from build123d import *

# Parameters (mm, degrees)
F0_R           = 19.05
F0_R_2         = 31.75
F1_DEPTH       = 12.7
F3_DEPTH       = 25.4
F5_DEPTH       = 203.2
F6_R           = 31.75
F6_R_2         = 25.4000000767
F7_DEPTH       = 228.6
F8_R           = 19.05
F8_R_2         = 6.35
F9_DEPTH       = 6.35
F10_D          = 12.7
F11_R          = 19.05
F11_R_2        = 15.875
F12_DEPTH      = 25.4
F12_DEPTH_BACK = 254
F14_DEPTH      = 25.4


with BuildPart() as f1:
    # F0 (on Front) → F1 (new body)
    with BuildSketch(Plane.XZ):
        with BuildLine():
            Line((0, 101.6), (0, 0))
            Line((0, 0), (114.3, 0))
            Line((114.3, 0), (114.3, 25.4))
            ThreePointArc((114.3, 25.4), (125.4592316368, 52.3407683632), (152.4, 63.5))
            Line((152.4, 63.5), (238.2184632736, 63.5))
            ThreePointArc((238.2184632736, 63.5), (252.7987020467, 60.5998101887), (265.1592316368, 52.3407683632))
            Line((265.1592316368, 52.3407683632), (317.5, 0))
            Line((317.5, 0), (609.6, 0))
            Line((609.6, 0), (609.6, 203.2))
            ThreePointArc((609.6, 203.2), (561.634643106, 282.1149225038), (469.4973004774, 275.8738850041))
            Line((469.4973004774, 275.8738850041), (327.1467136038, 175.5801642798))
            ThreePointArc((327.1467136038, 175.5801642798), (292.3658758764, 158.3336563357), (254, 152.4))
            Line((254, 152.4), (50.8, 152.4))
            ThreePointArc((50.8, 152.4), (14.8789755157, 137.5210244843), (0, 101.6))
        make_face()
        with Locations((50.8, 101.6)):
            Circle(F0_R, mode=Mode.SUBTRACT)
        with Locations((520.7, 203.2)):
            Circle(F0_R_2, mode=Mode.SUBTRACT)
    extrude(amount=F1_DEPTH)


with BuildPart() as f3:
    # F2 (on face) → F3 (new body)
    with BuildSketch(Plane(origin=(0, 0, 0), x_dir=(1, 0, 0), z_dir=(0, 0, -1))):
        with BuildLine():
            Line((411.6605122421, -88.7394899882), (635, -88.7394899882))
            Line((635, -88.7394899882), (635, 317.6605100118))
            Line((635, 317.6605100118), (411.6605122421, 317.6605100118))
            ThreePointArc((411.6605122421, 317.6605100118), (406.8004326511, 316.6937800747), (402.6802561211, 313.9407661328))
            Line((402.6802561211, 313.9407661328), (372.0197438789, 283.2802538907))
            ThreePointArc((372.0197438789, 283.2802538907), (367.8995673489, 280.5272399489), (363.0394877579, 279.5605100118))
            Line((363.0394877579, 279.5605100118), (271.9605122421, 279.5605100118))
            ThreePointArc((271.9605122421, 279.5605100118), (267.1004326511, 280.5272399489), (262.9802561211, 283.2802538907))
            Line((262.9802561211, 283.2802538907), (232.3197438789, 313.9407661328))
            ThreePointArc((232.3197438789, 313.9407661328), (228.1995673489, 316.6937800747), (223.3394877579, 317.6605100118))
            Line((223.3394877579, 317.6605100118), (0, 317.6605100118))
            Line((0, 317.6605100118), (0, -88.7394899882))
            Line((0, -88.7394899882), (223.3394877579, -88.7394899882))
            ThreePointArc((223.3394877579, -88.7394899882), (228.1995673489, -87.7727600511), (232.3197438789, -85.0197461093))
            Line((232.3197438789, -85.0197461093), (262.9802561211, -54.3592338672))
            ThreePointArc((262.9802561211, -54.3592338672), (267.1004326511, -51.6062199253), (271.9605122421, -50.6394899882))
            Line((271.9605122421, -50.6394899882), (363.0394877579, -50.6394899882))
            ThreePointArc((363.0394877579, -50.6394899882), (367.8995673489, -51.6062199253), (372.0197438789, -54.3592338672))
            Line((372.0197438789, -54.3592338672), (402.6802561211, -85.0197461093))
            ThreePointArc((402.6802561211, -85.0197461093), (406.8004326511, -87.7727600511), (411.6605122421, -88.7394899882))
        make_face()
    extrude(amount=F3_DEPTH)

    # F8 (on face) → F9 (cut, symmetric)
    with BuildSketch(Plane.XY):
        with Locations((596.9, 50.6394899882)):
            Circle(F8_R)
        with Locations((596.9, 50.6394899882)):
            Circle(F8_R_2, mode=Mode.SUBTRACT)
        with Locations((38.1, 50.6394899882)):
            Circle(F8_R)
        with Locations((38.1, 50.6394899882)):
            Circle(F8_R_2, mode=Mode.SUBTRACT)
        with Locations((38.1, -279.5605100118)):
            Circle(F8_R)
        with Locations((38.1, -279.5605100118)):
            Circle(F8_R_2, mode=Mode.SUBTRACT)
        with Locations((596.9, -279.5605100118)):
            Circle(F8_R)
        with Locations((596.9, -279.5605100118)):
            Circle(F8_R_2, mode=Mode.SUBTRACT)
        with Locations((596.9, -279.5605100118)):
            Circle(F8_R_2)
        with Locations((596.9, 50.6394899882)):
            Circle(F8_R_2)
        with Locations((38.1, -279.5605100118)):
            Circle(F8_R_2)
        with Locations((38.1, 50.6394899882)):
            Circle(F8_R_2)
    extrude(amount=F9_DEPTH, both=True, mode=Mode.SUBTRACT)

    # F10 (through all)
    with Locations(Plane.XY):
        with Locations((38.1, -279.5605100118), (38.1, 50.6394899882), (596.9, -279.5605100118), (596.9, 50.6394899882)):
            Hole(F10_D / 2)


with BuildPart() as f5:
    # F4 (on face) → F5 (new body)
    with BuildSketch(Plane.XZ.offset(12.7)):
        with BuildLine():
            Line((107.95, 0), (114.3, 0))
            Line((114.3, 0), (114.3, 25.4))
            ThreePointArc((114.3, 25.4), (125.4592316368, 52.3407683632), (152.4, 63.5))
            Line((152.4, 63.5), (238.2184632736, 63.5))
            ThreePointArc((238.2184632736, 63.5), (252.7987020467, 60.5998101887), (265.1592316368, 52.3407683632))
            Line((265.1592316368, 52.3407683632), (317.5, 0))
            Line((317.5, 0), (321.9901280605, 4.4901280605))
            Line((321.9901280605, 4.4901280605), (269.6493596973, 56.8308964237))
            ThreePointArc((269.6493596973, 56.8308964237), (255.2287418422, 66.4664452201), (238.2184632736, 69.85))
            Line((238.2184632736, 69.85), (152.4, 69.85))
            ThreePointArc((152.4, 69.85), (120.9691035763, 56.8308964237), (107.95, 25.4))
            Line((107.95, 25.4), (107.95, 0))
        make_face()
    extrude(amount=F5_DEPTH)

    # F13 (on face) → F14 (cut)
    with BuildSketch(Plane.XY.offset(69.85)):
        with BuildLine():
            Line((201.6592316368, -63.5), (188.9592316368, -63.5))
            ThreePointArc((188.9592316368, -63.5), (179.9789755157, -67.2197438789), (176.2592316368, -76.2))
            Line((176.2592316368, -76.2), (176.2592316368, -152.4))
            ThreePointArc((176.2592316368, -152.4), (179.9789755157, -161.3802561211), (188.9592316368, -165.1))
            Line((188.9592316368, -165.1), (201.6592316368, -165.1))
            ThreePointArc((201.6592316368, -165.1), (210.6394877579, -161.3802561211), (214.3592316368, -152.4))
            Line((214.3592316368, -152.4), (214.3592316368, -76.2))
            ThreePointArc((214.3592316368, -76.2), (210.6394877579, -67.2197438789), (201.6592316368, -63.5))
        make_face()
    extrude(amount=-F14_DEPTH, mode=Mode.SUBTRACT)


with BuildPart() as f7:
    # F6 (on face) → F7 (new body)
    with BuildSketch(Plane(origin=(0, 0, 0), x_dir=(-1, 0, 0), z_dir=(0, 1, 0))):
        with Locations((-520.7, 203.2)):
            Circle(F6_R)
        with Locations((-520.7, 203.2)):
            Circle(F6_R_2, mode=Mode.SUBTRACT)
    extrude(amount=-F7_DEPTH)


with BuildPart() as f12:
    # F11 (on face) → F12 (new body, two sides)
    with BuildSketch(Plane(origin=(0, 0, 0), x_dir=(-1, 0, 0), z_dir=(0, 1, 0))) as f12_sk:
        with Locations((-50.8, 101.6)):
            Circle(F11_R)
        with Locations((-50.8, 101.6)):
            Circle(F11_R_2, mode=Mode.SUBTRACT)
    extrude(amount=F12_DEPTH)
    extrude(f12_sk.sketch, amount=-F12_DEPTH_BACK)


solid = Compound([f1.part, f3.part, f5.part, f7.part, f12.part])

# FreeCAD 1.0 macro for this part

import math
import FreeCAD as App
import Part
import Sketcher
Q = App.Units.Quantity

doc = App.newDocument("Part")
body = doc.addObject("PartDesign::Body", "Body")

# Sketch on XZ plane
sketch1 = body.newObject("Sketcher::SketchObject", "Sketch")
sketch1.AttachmentSupport = (doc.getObject("XZ_Plane"), [""])
sketch1.MapMode = "FlatFace"
sketch1.addGeometry([
    Part.LineSegment(App.Vector(0, 102, 0), App.Vector(0, 0, 0)),  # 0
    Part.LineSegment(App.Vector(0, 0, 0), App.Vector(114, 0, 0)),  # 1
    Part.LineSegment(App.Vector(114, 0, 0), App.Vector(114, 25, 0)),  # 2
    Part.ArcOfCircle(Part.Circle(App.Vector(152, 25, 0), App.Vector(0, 0, 1), 38), math.radians(90), math.radians(180)),  # 3
    Part.LineSegment(App.Vector(152, 64, 0), App.Vector(238, 64, 0)),  # 4
    Part.ArcOfCircle(Part.Circle(App.Vector(238, 25, 0), App.Vector(0, 0, 1), 38), math.radians(45), math.radians(90)),  # 5
    Part.LineSegment(App.Vector(265, 52, 0), App.Vector(318, 0, 0)),  # 6
    Part.LineSegment(App.Vector(318, 0, 0), App.Vector(610, 0, 0)),  # 7
    Part.LineSegment(App.Vector(610, 0, 0), App.Vector(610, 203, 0)),  # 8
    Part.ArcOfCircle(Part.Circle(App.Vector(521, 203, 0), App.Vector(0, 0, 1), 89), math.radians(0), math.radians(125)),  # 9
    Part.LineSegment(App.Vector(469, 276, 0), App.Vector(327, 176, 0)),  # 10
    Part.ArcOfCircle(Part.Circle(App.Vector(254, 279, 0), App.Vector(0, 0, 1), 127), math.radians(-90), math.radians(-55)),  # 11
    Part.LineSegment(App.Vector(254, 152, 0), App.Vector(51, 152, 0)),  # 12
    Part.ArcOfCircle(Part.Circle(App.Vector(51, 102, 0), App.Vector(0, 0, 1), 51), math.radians(90), math.radians(180)),  # 13
    Part.Circle(App.Vector(51, 102, 0), App.Vector(0, 0, 1), 19),  # 14
    Part.Circle(App.Vector(521, 203, 0), App.Vector(0, 0, 1), 32),  # 15
], False)
sketch1.addConstraint([
    Sketcher.Constraint("Coincident", 0, 2, 1, 1),
    Sketcher.Constraint("Coincident", 1, 2, 2, 1),
    Sketcher.Constraint("Tangent", 2, 2, 3, 2),
    Sketcher.Constraint("Tangent", 3, 1, 4, 1),
    Sketcher.Constraint("Tangent", 4, 2, 5, 2),
    Sketcher.Constraint("Tangent", 5, 1, 6, 1),
    Sketcher.Constraint("Coincident", 6, 2, 7, 1),
    Sketcher.Constraint("Coincident", 7, 2, 8, 1),
    Sketcher.Constraint("Tangent", 8, 2, 9, 1),
    Sketcher.Constraint("Tangent", 9, 2, 10, 1),
    Sketcher.Constraint("Tangent", 10, 2, 11, 2),
    Sketcher.Constraint("Tangent", 11, 1, 12, 1),
    Sketcher.Constraint("Tangent", 12, 2, 13, 1),
    Sketcher.Constraint("Tangent", 13, 2, 0, 1),
    Sketcher.Constraint("Vertical", 0),
    Sketcher.Constraint("Horizontal", 1),
    Sketcher.Constraint("Vertical", 2),
    Sketcher.Constraint("Horizontal", 4),
    Sketcher.Constraint("Horizontal", 7),
    Sketcher.Constraint("Vertical", 8),
    Sketcher.Constraint("Horizontal", 12),
    Sketcher.Constraint("Coincident", 0, 2, -1, 1),
    Sketcher.Constraint("Coincident", 14, 3, 13, 3),
    Sketcher.Constraint("Coincident", 15, 3, 9, 3),
    Sketcher.Constraint("Equal", 3, 5),
    Sketcher.Constraint("PointOnObject", 6, 2, -1),
    Sketcher.Constraint("Equal", 12, 8),
    Sketcher.Constraint("Radius", 11, Q("5 in")),
    Sketcher.Constraint("Radius", 13, Q("2 in")),
    Sketcher.Constraint("Diameter", 14, Q("1.5 in")),
    Sketcher.Constraint("Diameter", 15, Q("2.5 in")),
    Sketcher.Constraint("Radius", 3, Q("1.5 in")),
    Sketcher.Constraint("Radius", 9, Q("3.5 in")),
    Sketcher.Constraint("DistanceX", 12, 2, 12, 1, Q("8 in")),
    Sketcher.Constraint("DistanceY", 0, 2, 0, 1, Q("4 in")),
    Sketcher.Constraint("DistanceY", 2, 1, 2, 2, Q("1 in")),
    Sketcher.Constraint("DistanceX", 1, 1, 1, 2, Q("4.5 in")),
    Sketcher.Constraint("DistanceX", 7, 1, 7, 2, Q("11.5 in")),
    Sketcher.Constraint("DistanceX", -1, 1, 7, 2, Q("24 in")),
    Sketcher.Constraint("Angle", 6, Q("-45 deg")),
])
pad1 = body.newObject("PartDesign::Pad", "Pad")
pad1.Profile = sketch1
pad1.Length = Q("0.5 in")
body2 = doc.addObject("PartDesign::Body", "Body001")

# Sketch on XY plane
sketch2 = body2.newObject("Sketcher::SketchObject", "Sketch001")
sketch2.AttachmentSupport = (doc.getObject("XY_Plane001"), [""])
sketch2.MapMode = "FlatFace"
sketch2.addGeometry([
    Part.LineSegment(App.Vector(412, 89, 0), App.Vector(635, 89, 0)),  # 0
    Part.LineSegment(App.Vector(635, 89, 0), App.Vector(635, -318, 0)),  # 1
    Part.LineSegment(App.Vector(635, -318, 0), App.Vector(412, -318, 0)),  # 2
    Part.ArcOfCircle(Part.Circle(App.Vector(412, -305, 0), App.Vector(0, 0, 1), 13), math.radians(-135), math.radians(-90)),  # 3
    Part.LineSegment(App.Vector(403, -314, 0), App.Vector(372, -283, 0)),  # 4
    Part.ArcOfCircle(Part.Circle(App.Vector(363, -292, 0), App.Vector(0, 0, 1), 13), math.radians(45), math.radians(90)),  # 5
    Part.LineSegment(App.Vector(363, -280, 0), App.Vector(272, -280, 0)),  # 6
    Part.ArcOfCircle(Part.Circle(App.Vector(272, -292, 0), App.Vector(0, 0, 1), 13), math.radians(90), math.radians(135)),  # 7
    Part.LineSegment(App.Vector(263, -283, 0), App.Vector(232, -314, 0)),  # 8
    Part.ArcOfCircle(Part.Circle(App.Vector(223, -305, 0), App.Vector(0, 0, 1), 13), math.radians(-90), math.radians(-45)),  # 9
    Part.LineSegment(App.Vector(223, -318, 0), App.Vector(0, -318, 0)),  # 10
    Part.LineSegment(App.Vector(0, -318, 0), App.Vector(0, 89, 0)),  # 11
    Part.LineSegment(App.Vector(0, 89, 0), App.Vector(223, 89, 0)),  # 12
    Part.ArcOfCircle(Part.Circle(App.Vector(223, 76, 0), App.Vector(0, 0, 1), 13), math.radians(45), math.radians(90)),  # 13
    Part.LineSegment(App.Vector(232, 85, 0), App.Vector(263, 54, 0)),  # 14
    Part.ArcOfCircle(Part.Circle(App.Vector(272, 63, 0), App.Vector(0, 0, 1), 13), math.radians(-135), math.radians(-90)),  # 15
    Part.LineSegment(App.Vector(272, 51, 0), App.Vector(363, 51, 0)),  # 16
    Part.ArcOfCircle(Part.Circle(App.Vector(363, 63, 0), App.Vector(0, 0, 1), 13), math.radians(-90), math.radians(-45)),  # 17
    Part.LineSegment(App.Vector(372, 54, 0), App.Vector(403, 85, 0)),  # 18
    Part.ArcOfCircle(Part.Circle(App.Vector(412, 76, 0), App.Vector(0, 0, 1), 13), math.radians(90), math.radians(135)),  # 19
], False)
sketch2.addConstraint([
    Sketcher.Constraint("Coincident", 0, 2, 1, 1),
    Sketcher.Constraint("Coincident", 1, 2, 2, 1),
    Sketcher.Constraint("Tangent", 2, 2, 3, 2),
    Sketcher.Constraint("Tangent", 3, 1, 4, 1),
    Sketcher.Constraint("Tangent", 4, 2, 5, 1),
    Sketcher.Constraint("Tangent", 5, 2, 6, 1),
    Sketcher.Constraint("Tangent", 6, 2, 7, 1),
    Sketcher.Constraint("Tangent", 7, 2, 8, 1),
    Sketcher.Constraint("Tangent", 8, 2, 9, 2),
    Sketcher.Constraint("Tangent", 9, 1, 10, 1),
    Sketcher.Constraint("Coincident", 10, 2, 11, 1),
    Sketcher.Constraint("Coincident", 11, 2, 12, 1),
    Sketcher.Constraint("Tangent", 12, 2, 13, 2),
    Sketcher.Constraint("Tangent", 13, 1, 14, 1),
    Sketcher.Constraint("Tangent", 14, 2, 15, 1),
    Sketcher.Constraint("Tangent", 15, 2, 16, 1),
    Sketcher.Constraint("Tangent", 16, 2, 17, 1),
    Sketcher.Constraint("Tangent", 17, 2, 18, 1),
    Sketcher.Constraint("Tangent", 18, 2, 19, 2),
    Sketcher.Constraint("Tangent", 19, 1, 0, 1),
    Sketcher.Constraint("Horizontal", 0),
    Sketcher.Constraint("Vertical", 1),
    Sketcher.Constraint("Horizontal", 2),
    Sketcher.Constraint("Horizontal", 6),
    Sketcher.Constraint("Horizontal", 10),
    Sketcher.Constraint("Vertical", 11),
    Sketcher.Constraint("Horizontal", 12),
    Sketcher.Constraint("Horizontal", 16),
    Sketcher.Constraint("Equal", 3, 5),
    Sketcher.Constraint("Equal", 5, 7),
    Sketcher.Constraint("Equal", 7, 9),
    Sketcher.Constraint("Equal", 9, 13),
    Sketcher.Constraint("Equal", 13, 15),
    Sketcher.Constraint("Equal", 15, 17),
    Sketcher.Constraint("Equal", 17, 19),
    Sketcher.Constraint("PointOnObject", 10, 2, -2),
    Sketcher.Constraint("Perpendicular", 4, 8),
    Sketcher.Constraint("Perpendicular", 8, 14),
    Sketcher.Constraint("Perpendicular", 14, 18),
    Sketcher.Constraint("Horizontal", 3, 3, 9, 3),
    Sketcher.Constraint("Horizontal", 13, 3, 19, 3),
    Sketcher.Constraint("Horizontal", 4, 2, 7, 2),
    Sketcher.Constraint("Vertical", 9, 3, 13, 3),
    Sketcher.Constraint("Vertical", 7, 3, 15, 3),
    Sketcher.Constraint("Vertical", 5, 3, 17, 3),
    Sketcher.Constraint("Equal", 2, 10),
    Sketcher.Constraint("Radius", 3, Q("0.5 in")),
    Sketcher.Constraint("DistanceY", 1, 2, 1, 1, Q("16 in")),
    Sketcher.Constraint("DistanceX", -1, 1, 0, 2, Q("25 in")),
    Sketcher.Constraint("DistanceY", 7, 3, 15, 3, Q("14 in")),
    Sketcher.Constraint("DistanceX", 7, 3, 3, 3, Q("5.5 in")),
    Sketcher.Constraint("DistanceY", 3, 3, -1, 1, Q("304.96051 mm")),
])
pad2 = body2.newObject("PartDesign::Pad", "Pad001")
pad2.Profile = sketch2
pad2.Length = Q("1 in")
pad2.Reversed = True

# Sketch on XY plane
sketch3 = body2.newObject("Sketcher::SketchObject", "Sketch002")
sketch3.AttachmentSupport = (doc.getObject("XY_Plane001"), [""])
sketch3.MapMode = "FlatFace"
sketch3.addGeometry([
    Part.Circle(App.Vector(597, 51, 0), App.Vector(0, 0, 1), 19),
    Part.Circle(App.Vector(38, 51, 0), App.Vector(0, 0, 1), 19),
    Part.Circle(App.Vector(38, -280, 0), App.Vector(0, 0, 1), 19),
    Part.Circle(App.Vector(597, -280, 0), App.Vector(0, 0, 1), 19),
], False)
sketch3.addConstraint([
    Sketcher.Constraint("Equal", 0, 1),
    Sketcher.Constraint("Equal", 1, 2),
    Sketcher.Constraint("Equal", 2, 3),
    Sketcher.Constraint("Horizontal", 0, 3, 1, 3),
    Sketcher.Constraint("Horizontal", 2, 3, 3, 3),
    Sketcher.Constraint("Vertical", 1, 3, 2, 3),
    Sketcher.Constraint("Vertical", 0, 3, 3, 3),
    Sketcher.Constraint("Diameter", 0, Q("1.5 in")),
    Sketcher.Constraint("DistanceX", 1, 3, 0, 3, Q("22 in")),
    Sketcher.Constraint("DistanceY", 2, 3, 1, 3, Q("13 in")),
    Sketcher.Constraint("DistanceX", -1, 1, 0, 3, Q("23.5 in")),
    Sketcher.Constraint("DistanceY", -1, 1, 0, 3, Q("50.63949 mm")),
])
pocket1 = body2.newObject("PartDesign::Pocket", "Pocket")
pocket1.Profile = sketch3
pocket1.Length = Q("0.5 in")
pocket1.Midplane = True

# Sketch on XY plane
sketch4 = body2.newObject("Sketcher::SketchObject", "Sketch003")
sketch4.AttachmentSupport = (doc.getObject("XY_Plane001"), [""])
sketch4.MapMode = "FlatFace"
sketch4.addGeometry([
    Part.Circle(App.Vector(38, -280, 0), App.Vector(0, 0, 1), 6),
    Part.Circle(App.Vector(38, 51, 0), App.Vector(0, 0, 1), 6),
    Part.Circle(App.Vector(597, -280, 0), App.Vector(0, 0, 1), 6),
    Part.Circle(App.Vector(597, 51, 0), App.Vector(0, 0, 1), 6),
], False)
sketch4.addConstraint([
    Sketcher.Constraint("Equal", 0, 1),
    Sketcher.Constraint("Equal", 1, 2),
    Sketcher.Constraint("Equal", 2, 3),
    Sketcher.Constraint("Horizontal", 0, 3, 2, 3),
    Sketcher.Constraint("Horizontal", 1, 3, 3, 3),
    Sketcher.Constraint("Vertical", 0, 3, 1, 3),
    Sketcher.Constraint("Vertical", 2, 3, 3, 3),
    Sketcher.Constraint("Diameter", 0, Q("0.5 in")),
    Sketcher.Constraint("DistanceY", 0, 3, 1, 3, Q("13 in")),
    Sketcher.Constraint("DistanceX", 0, 3, 2, 3, Q("22 in")),
    Sketcher.Constraint("DistanceX", -1, 1, 0, 3, Q("1.5 in")),
    Sketcher.Constraint("DistanceY", 0, 3, -1, 1, Q("279.56051 mm")),
])
doc.recompute()
hole = body2.newObject("PartDesign::Hole", "Hole")
hole.Profile = sketch4
hole.ThreadType = "None"
hole.Diameter = Q("0.5 in")
hole.DepthType = "ThroughAll"
body3 = doc.addObject("PartDesign::Body", "Body002")

# Sketch on XZ plane
sketch5 = body3.newObject("Sketcher::SketchObject", "Sketch004")
sketch5.AttachmentSupport = (doc.getObject("XZ_Plane002"), [""])
sketch5.MapMode = "FlatFace"
sketch5.AttachmentOffset = App.Placement(App.Vector(0, 0, 0.5 * 25.4), App.Rotation())
sketch5.addGeometry([
    Part.LineSegment(App.Vector(108, 0, 0), App.Vector(114, 0, 0)),  # 0
    Part.LineSegment(App.Vector(114, 0, 0), App.Vector(114, 25, 0)),  # 1
    Part.ArcOfCircle(Part.Circle(App.Vector(152, 25, 0), App.Vector(0, 0, 1), 38), math.radians(90), math.radians(180)),  # 2
    Part.LineSegment(App.Vector(152, 64, 0), App.Vector(238, 64, 0)),  # 3
    Part.ArcOfCircle(Part.Circle(App.Vector(238, 25, 0), App.Vector(0, 0, 1), 38), math.radians(45), math.radians(90)),  # 4
    Part.LineSegment(App.Vector(265, 52, 0), App.Vector(318, 0, 0)),  # 5
    Part.LineSegment(App.Vector(318, 0, 0), App.Vector(322, 4, 0)),  # 6
    Part.LineSegment(App.Vector(322, 4, 0), App.Vector(270, 57, 0)),  # 7
    Part.ArcOfCircle(Part.Circle(App.Vector(238, 25, 0), App.Vector(0, 0, 1), 44), math.radians(45), math.radians(90)),  # 8
    Part.LineSegment(App.Vector(238, 70, 0), App.Vector(152, 70, 0)),  # 9
    Part.ArcOfCircle(Part.Circle(App.Vector(152, 25, 0), App.Vector(0, 0, 1), 44), math.radians(90), math.radians(180)),  # 10
    Part.LineSegment(App.Vector(108, 25, 0), App.Vector(108, 0, 0)),  # 11
], False)
sketch5.addConstraint([
    Sketcher.Constraint("Coincident", 0, 2, 1, 1),
    Sketcher.Constraint("Tangent", 1, 2, 2, 2),
    Sketcher.Constraint("Tangent", 2, 1, 3, 1),
    Sketcher.Constraint("Tangent", 3, 2, 4, 2),
    Sketcher.Constraint("Tangent", 4, 1, 5, 1),
    Sketcher.Constraint("Coincident", 5, 2, 6, 1),
    Sketcher.Constraint("Coincident", 6, 2, 7, 1),
    Sketcher.Constraint("Tangent", 7, 2, 8, 1),
    Sketcher.Constraint("Tangent", 8, 2, 9, 1),
    Sketcher.Constraint("Tangent", 9, 2, 10, 1),
    Sketcher.Constraint("Tangent", 10, 2, 11, 1),
    Sketcher.Constraint("Coincident", 11, 2, 0, 1),
    Sketcher.Constraint("Horizontal", 0),
    Sketcher.Constraint("Vertical", 1),
    Sketcher.Constraint("Horizontal", 3),
    Sketcher.Constraint("Horizontal", 9),
    Sketcher.Constraint("Vertical", 11),
    Sketcher.Constraint("Coincident", 8, 3, 4, 3),
    Sketcher.Constraint("Coincident", 10, 3, 2, 3),
    Sketcher.Constraint("Equal", 2, 4),
    Sketcher.Constraint("PointOnObject", 0, 2, -1),
    Sketcher.Constraint("PointOnObject", 5, 2, -1),
    Sketcher.Constraint("Perpendicular", 5, 6),
    Sketcher.Constraint("Perpendicular", 6, 7),
    Sketcher.Constraint("Radius", 2, Q("1.5 in")),
    Sketcher.Constraint("DistanceY", 1, 1, 1, 2, Q("1 in")),
    Sketcher.Constraint("Radius", 8, Q("1.75 in")),
    Sketcher.Constraint("DistanceX", -1, 1, 2, 3, Q("6 in")),
    Sketcher.Constraint("Angle", 5, Q("-45 deg")),
    Sketcher.Constraint("DistanceX", -1, 1, 5, 2, Q("12.5 in")),
])
pad3 = body3.newObject("PartDesign::Pad", "Pad002")
pad3.Profile = sketch5
pad3.Length = Q("8 in")

# Sketch on XY plane
sketch6 = body3.newObject("Sketcher::SketchObject", "Sketch005")
sketch6.AttachmentSupport = (doc.getObject("XY_Plane002"), [""])
sketch6.MapMode = "FlatFace"
sketch6.AttachmentOffset = App.Placement(App.Vector(0, 0, 2.75 * 25.4), App.Rotation())
sketch6.addGeometry([
    Part.LineSegment(App.Vector(202, -64, 0), App.Vector(189, -64, 0)),  # 0
    Part.ArcOfCircle(Part.Circle(App.Vector(189, -76, 0), App.Vector(0, 0, 1), 13), math.radians(90), math.radians(180)),  # 1
    Part.LineSegment(App.Vector(176, -76, 0), App.Vector(176, -152, 0)),  # 2
    Part.ArcOfCircle(Part.Circle(App.Vector(189, -152, 0), App.Vector(0, 0, 1), 13), math.radians(180), math.radians(270)),  # 3
    Part.LineSegment(App.Vector(189, -165, 0), App.Vector(202, -165, 0)),  # 4
    Part.ArcOfCircle(Part.Circle(App.Vector(202, -152, 0), App.Vector(0, 0, 1), 13), math.radians(-90), math.radians(0)),  # 5
    Part.LineSegment(App.Vector(214, -152, 0), App.Vector(214, -76, 0)),  # 6
    Part.ArcOfCircle(Part.Circle(App.Vector(202, -76, 0), App.Vector(0, 0, 1), 13), math.radians(0), math.radians(90)),  # 7
], False)
sketch6.addConstraint([
    Sketcher.Constraint("Tangent", 0, 2, 1, 1),
    Sketcher.Constraint("Tangent", 1, 2, 2, 1),
    Sketcher.Constraint("Tangent", 2, 2, 3, 1),
    Sketcher.Constraint("Tangent", 3, 2, 4, 1),
    Sketcher.Constraint("Tangent", 4, 2, 5, 1),
    Sketcher.Constraint("Tangent", 5, 2, 6, 1),
    Sketcher.Constraint("Tangent", 6, 2, 7, 1),
    Sketcher.Constraint("Tangent", 7, 2, 0, 1),
    Sketcher.Constraint("Horizontal", 0),
    Sketcher.Constraint("Vertical", 2),
    Sketcher.Constraint("Horizontal", 4),
    Sketcher.Constraint("Vertical", 6),
    Sketcher.Constraint("Equal", 1, 3),
    Sketcher.Constraint("Equal", 3, 5),
    Sketcher.Constraint("Equal", 5, 7),
    Sketcher.Constraint("Radius", 1, Q("0.5 in")),
    Sketcher.Constraint("DistanceY", 2, 2, 2, 1, Q("3 in")),
    Sketcher.Constraint("DistanceX", 0, 2, 0, 1, Q("0.5 in")),
    Sketcher.Constraint("DistanceY", 1, 3, -1, 1, Q("3 in")),
    Sketcher.Constraint("DistanceX", -1, 1, 1, 3, Q("188.959232 mm")),
])
pocket2 = body3.newObject("PartDesign::Pocket", "Pocket001")
pocket2.Profile = sketch6
pocket2.Length = Q("1 in")
body4 = doc.addObject("PartDesign::Body", "Body003")

# Sketch on XZ plane
sketch7 = body4.newObject("Sketcher::SketchObject", "Sketch006")
sketch7.AttachmentSupport = (doc.getObject("XZ_Plane003"), [""])
sketch7.MapMode = "FlatFace"
sketch7.addGeometry([
    Part.Circle(App.Vector(521, 203, 0), App.Vector(0, 0, 1), 32),
    Part.Circle(App.Vector(521, 203, 0), App.Vector(0, 0, 1), 25),
], False)
sketch7.addConstraint([
    Sketcher.Constraint("Coincident", 1, 3, 0, 3),
    Sketcher.Constraint("Diameter", 1, Q("2 in")),
    Sketcher.Constraint("Diameter", 0, Q("2.5 in")),
    Sketcher.Constraint("DistanceY", -1, 1, 0, 3, Q("8 in")),
    Sketcher.Constraint("DistanceX", -1, 1, 0, 3, Q("20.5 in")),
])
pad4 = body4.newObject("PartDesign::Pad", "Pad003")
pad4.Profile = sketch7
pad4.Length = Q("9 in")
body5 = doc.addObject("PartDesign::Body", "Body004")

# Sketch on XZ plane
sketch8 = body5.newObject("Sketcher::SketchObject", "Sketch007")
sketch8.AttachmentSupport = (doc.getObject("XZ_Plane004"), [""])
sketch8.MapMode = "FlatFace"
sketch8.addGeometry([
    Part.Circle(App.Vector(51, 102, 0), App.Vector(0, 0, 1), 19),
    Part.Circle(App.Vector(51, 102, 0), App.Vector(0, 0, 1), 16),
], False)
sketch8.addConstraint([
    Sketcher.Constraint("Coincident", 1, 3, 0, 3),
    Sketcher.Constraint("Diameter", 0, Q("1.5 in")),
    Sketcher.Constraint("Diameter", 1, Q("1.25 in")),
    Sketcher.Constraint("DistanceX", -1, 1, 0, 3, Q("2 in")),
    Sketcher.Constraint("DistanceY", -1, 1, 0, 3, Q("4 in")),
])
pad5 = body5.newObject("PartDesign::Pad", "Pad004")
pad5.Profile = sketch8
pad5.Type = "TwoLengths"
pad5.Length = Q("1 in")
pad5.Length2 = Q("10 in")
pad5.Reversed = True

doc.recompute()
